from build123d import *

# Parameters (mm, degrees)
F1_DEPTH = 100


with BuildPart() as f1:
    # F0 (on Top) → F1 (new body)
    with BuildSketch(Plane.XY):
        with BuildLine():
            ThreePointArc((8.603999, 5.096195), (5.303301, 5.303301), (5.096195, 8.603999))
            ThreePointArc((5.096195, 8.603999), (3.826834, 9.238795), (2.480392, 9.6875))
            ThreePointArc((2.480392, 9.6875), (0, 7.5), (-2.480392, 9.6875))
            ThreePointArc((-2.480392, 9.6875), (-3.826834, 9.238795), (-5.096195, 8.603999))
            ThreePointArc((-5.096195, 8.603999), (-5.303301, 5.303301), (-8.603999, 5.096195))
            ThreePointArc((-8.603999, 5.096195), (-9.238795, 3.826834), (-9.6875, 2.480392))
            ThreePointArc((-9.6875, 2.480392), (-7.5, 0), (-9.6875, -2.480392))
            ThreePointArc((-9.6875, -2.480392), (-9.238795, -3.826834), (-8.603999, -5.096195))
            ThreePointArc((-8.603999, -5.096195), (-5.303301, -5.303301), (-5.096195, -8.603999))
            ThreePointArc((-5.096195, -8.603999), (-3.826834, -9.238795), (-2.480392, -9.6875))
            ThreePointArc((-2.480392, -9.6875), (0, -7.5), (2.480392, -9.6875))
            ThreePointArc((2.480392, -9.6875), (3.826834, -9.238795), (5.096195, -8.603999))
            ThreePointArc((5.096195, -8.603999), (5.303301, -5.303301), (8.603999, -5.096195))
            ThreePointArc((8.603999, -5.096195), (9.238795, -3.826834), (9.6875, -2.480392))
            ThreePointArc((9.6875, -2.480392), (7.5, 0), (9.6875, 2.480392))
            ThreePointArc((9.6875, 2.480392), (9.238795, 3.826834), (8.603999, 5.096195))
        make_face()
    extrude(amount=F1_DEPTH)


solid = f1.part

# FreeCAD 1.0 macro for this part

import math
import FreeCAD as App
import Part
import Sketcher
Q = App.Units.Quantity

doc = App.newDocument("Part")
body = doc.addObject("PartDesign::Body", "Body")

sketch1 = doc.addObject("Sketcher::SketchObject", "Sketch")
body.addObject(sketch1)
sketch1.AttachmentSupport = (doc.XY_Plane, [""])
sketch1.MapMode = "FlatFace"
sketch1.addGeometry(Part.ArcOfCircle(Part.Circle(App.Vector(7.071068, 7.071068, 0), App.Vector(0, 0, 1), 2.5), math.radians(142.180762), math.radians(307.819238)), False)
sketch1.addGeometry(Part.ArcOfCircle(Part.Circle(App.Vector(-0.000019, -0.000046, 0), App.Vector(0, 0, 1), 10.000049), math.radians(59.361554), math.radians(75.638449)), False)
sketch1.addGeometry(Part.ArcOfCircle(Part.Circle(App.Vector(0, 10, 0), App.Vector(0, 0, 1), 2.5), math.radians(-172.819241), math.radians(-7.180759)), False)
sketch1.addGeometry(Part.ArcOfCircle(Part.Circle(App.Vector(0.000019, -0.000046, 0), App.Vector(0, 0, 1), 10.000049), math.radians(104.361551), math.radians(120.638446)), False)
sketch1.addGeometry(Part.ArcOfCircle(Part.Circle(App.Vector(-7.071068, 7.071068, 0), App.Vector(0, 0, 1), 2.5), math.radians(-127.819238), math.radians(37.819238)), False)
sketch1.addGeometry(Part.ArcOfCircle(Part.Circle(App.Vector(0.000046, -0.000019, 0), App.Vector(0, 0, 1), 10.000049), math.radians(149.361554), math.radians(165.638449)), False)
sketch1.addGeometry(Part.ArcOfCircle(Part.Circle(App.Vector(-10, 0, 0), App.Vector(0, 0, 1), 2.5), math.radians(-82.819241), math.radians(82.819241)), False)
sketch1.addGeometry(Part.ArcOfCircle(Part.Circle(App.Vector(0.000046, 0.000019, 0), App.Vector(0, 0, 1), 10.000049), math.radians(-165.638449), math.radians(-149.361554)), False)
sketch1.addGeometry(Part.ArcOfCircle(Part.Circle(App.Vector(-7.071068, -7.071068, 0), App.Vector(0, 0, 1), 2.5), math.radians(-37.819238), math.radians(127.819238)), False)
sketch1.addGeometry(Part.ArcOfCircle(Part.Circle(App.Vector(0.000019, 0.000046, 0), App.Vector(0, 0, 1), 10.000049), math.radians(-120.638446), math.radians(-104.361551)), False)
sketch1.addGeometry(Part.ArcOfCircle(Part.Circle(App.Vector(0, -10, 0), App.Vector(0, 0, 1), 2.5), math.radians(7.180759), math.radians(172.819241)), False)
sketch1.addGeometry(Part.ArcOfCircle(Part.Circle(App.Vector(-0.000019, 0.000046, 0), App.Vector(0, 0, 1), 10.000049), math.radians(-75.638449), math.radians(-59.361554)), False)
sketch1.addGeometry(Part.ArcOfCircle(Part.Circle(App.Vector(7.071068, -7.071068, 0), App.Vector(0, 0, 1), 2.5), math.radians(52.180762), math.radians(217.819238)), False)
sketch1.addGeometry(Part.ArcOfCircle(Part.Circle(App.Vector(-0.000046, 0.000019, 0), App.Vector(0, 0, 1), 10.000049), math.radians(-30.638446), math.radians(-14.361551)), False)
sketch1.addGeometry(Part.ArcOfCircle(Part.Circle(App.Vector(10, 0, 0), App.Vector(0, 0, 1), 2.5), math.radians(97.180759), math.radians(262.819241)), False)
sketch1.addGeometry(Part.ArcOfCircle(Part.Circle(App.Vector(-0.000046, -0.000019, 0), App.Vector(0, 0, 1), 10.000049), math.radians(14.361551), math.radians(30.638446)), False)
sketch1.addConstraint(Sketcher.Constraint("Coincident", 0, 1, 1, 1))
sketch1.addConstraint(Sketcher.Constraint("Coincident", 1, 2, 2, 2))
sketch1.addConstraint(Sketcher.Constraint("Coincident", 2, 1, 3, 1))
sketch1.addConstraint(Sketcher.Constraint("Coincident", 3, 2, 4, 2))
sketch1.addConstraint(Sketcher.Constraint("Coincident", 4, 1, 5, 1))
sketch1.addConstraint(Sketcher.Constraint("Coincident", 5, 2, 6, 2))
sketch1.addConstraint(Sketcher.Constraint("Coincident", 6, 1, 7, 1))
sketch1.addConstraint(Sketcher.Constraint("Coincident", 7, 2, 8, 2))
sketch1.addConstraint(Sketcher.Constraint("Coincident", 8, 1, 9, 1))
sketch1.addConstraint(Sketcher.Constraint("Coincident", 9, 2, 10, 2))
sketch1.addConstraint(Sketcher.Constraint("Coincident", 10, 1, 11, 1))
sketch1.addConstraint(Sketcher.Constraint("Coincident", 11, 2, 12, 2))
sketch1.addConstraint(Sketcher.Constraint("Coincident", 12, 1, 13, 1))
sketch1.addConstraint(Sketcher.Constraint("Coincident", 13, 2, 14, 2))
sketch1.addConstraint(Sketcher.Constraint("Coincident", 14, 1, 15, 1))
sketch1.addConstraint(Sketcher.Constraint("Coincident", 15, 2, 0, 2))
sketch1.addConstraint(Sketcher.Constraint("Equal", 0, 2))
sketch1.addConstraint(Sketcher.Constraint("Equal", 1, 3))
sketch1.addConstraint(Sketcher.Constraint("Equal", 2, 4))
sketch1.addConstraint(Sketcher.Constraint("Equal", 3, 5))
sketch1.addConstraint(Sketcher.Constraint("Equal", 4, 6))
sketch1.addConstraint(Sketcher.Constraint("Equal", 5, 7))
sketch1.addConstraint(Sketcher.Constraint("Equal", 6, 8))
sketch1.addConstraint(Sketcher.Constraint("Equal", 7, 9))
sketch1.addConstraint(Sketcher.Constraint("Equal", 8, 10))
sketch1.addConstraint(Sketcher.Constraint("Equal", 9, 11))
sketch1.addConstraint(Sketcher.Constraint("Equal", 10, 12))
sketch1.addConstraint(Sketcher.Constraint("Equal", 11, 13))
sketch1.addConstraint(Sketcher.Constraint("Equal", 12, 14))
sketch1.addConstraint(Sketcher.Constraint("Equal", 13, 15))
sketch1.addConstraint(Sketcher.Constraint("Symmetric", 0, 3, 8, 3, -1, 1))
sketch1.addConstraint(Sketcher.Constraint("Symmetric", 1, 3, 9, 3, -1, 1))
sketch1.addConstraint(Sketcher.Constraint("Symmetric", 2, 3, 10, 3, -1, 1))
sketch1.addConstraint(Sketcher.Constraint("Symmetric", 3, 3, 11, 3, -1, 1))
sketch1.addConstraint(Sketcher.Constraint("Symmetric", 4, 3, 12, 3, -1, 1))
sketch1.addConstraint(Sketcher.Constraint("Symmetric", 5, 3, 13, 3, -1, 1))
sketch1.addConstraint(Sketcher.Constraint("Symmetric", 6, 3, 14, 3, -1, 1))
sketch1.addConstraint(Sketcher.Constraint("Symmetric", 7, 3, 15, 3, -1, 1))
sketch1.addConstraint(Sketcher.Constraint("Symmetric", 1, 3, 3, 3, -2))
sketch1.addConstraint(Sketcher.Constraint("Symmetric", 0, 3, 4, 3, -2))
sketch1.addConstraint(Sketcher.Constraint("Symmetric", 7, 3, 13, 3, -2))
sketch1.addConstraint(Sketcher.Constraint("PointOnObject", 2, 3, -2))
sketch1.addConstraint(Sketcher.Constraint("PointOnObject", 6, 3, -1))
sketch1.addConstraint(Sketcher.Constraint("Radius", 0, Q("2.5 mm")))
sketch1.addConstraint(Sketcher.Constraint("DistanceY", -1, 1, 2, 3, Q("10 mm")))
sketch1.addConstraint(Sketcher.Constraint("DistanceX", 6, 3, -1, 1, Q("10 mm")))
sketch1.addConstraint(Sketcher.Constraint("Radius", 1, Q("10.000049 mm")))
sketch1.addConstraint(Sketcher.Constraint("DistanceY", -1, 1, 0, 1, Q("8.603999 mm")))
sketch1.addConstraint(Sketcher.Constraint("DistanceX", 4, 1, -1, 1, Q("8.603999 mm")))
sketch1.addConstraint(Sketcher.Constraint("DistanceY", -1, 1, 1, 2, Q("9.6875 mm")))
sketch1.addConstraint(Sketcher.Constraint("DistanceX", 5, 2, -1, 1, Q("9.6875 mm")))
sketch1.addConstraint(Sketcher.Constraint("DistanceX", -1, 1, 0, 3, Q("7.071068 mm")))
sketch1.addConstraint(Sketcher.Constraint("DistanceY", -1, 1, 0, 3, Q("7.071068 mm")))
pad1 = doc.addObject("PartDesign::Pad", "Pad")
body.addObject(pad1)
pad1.Profile = sketch1
pad1.Length = 100

doc.recompute()
